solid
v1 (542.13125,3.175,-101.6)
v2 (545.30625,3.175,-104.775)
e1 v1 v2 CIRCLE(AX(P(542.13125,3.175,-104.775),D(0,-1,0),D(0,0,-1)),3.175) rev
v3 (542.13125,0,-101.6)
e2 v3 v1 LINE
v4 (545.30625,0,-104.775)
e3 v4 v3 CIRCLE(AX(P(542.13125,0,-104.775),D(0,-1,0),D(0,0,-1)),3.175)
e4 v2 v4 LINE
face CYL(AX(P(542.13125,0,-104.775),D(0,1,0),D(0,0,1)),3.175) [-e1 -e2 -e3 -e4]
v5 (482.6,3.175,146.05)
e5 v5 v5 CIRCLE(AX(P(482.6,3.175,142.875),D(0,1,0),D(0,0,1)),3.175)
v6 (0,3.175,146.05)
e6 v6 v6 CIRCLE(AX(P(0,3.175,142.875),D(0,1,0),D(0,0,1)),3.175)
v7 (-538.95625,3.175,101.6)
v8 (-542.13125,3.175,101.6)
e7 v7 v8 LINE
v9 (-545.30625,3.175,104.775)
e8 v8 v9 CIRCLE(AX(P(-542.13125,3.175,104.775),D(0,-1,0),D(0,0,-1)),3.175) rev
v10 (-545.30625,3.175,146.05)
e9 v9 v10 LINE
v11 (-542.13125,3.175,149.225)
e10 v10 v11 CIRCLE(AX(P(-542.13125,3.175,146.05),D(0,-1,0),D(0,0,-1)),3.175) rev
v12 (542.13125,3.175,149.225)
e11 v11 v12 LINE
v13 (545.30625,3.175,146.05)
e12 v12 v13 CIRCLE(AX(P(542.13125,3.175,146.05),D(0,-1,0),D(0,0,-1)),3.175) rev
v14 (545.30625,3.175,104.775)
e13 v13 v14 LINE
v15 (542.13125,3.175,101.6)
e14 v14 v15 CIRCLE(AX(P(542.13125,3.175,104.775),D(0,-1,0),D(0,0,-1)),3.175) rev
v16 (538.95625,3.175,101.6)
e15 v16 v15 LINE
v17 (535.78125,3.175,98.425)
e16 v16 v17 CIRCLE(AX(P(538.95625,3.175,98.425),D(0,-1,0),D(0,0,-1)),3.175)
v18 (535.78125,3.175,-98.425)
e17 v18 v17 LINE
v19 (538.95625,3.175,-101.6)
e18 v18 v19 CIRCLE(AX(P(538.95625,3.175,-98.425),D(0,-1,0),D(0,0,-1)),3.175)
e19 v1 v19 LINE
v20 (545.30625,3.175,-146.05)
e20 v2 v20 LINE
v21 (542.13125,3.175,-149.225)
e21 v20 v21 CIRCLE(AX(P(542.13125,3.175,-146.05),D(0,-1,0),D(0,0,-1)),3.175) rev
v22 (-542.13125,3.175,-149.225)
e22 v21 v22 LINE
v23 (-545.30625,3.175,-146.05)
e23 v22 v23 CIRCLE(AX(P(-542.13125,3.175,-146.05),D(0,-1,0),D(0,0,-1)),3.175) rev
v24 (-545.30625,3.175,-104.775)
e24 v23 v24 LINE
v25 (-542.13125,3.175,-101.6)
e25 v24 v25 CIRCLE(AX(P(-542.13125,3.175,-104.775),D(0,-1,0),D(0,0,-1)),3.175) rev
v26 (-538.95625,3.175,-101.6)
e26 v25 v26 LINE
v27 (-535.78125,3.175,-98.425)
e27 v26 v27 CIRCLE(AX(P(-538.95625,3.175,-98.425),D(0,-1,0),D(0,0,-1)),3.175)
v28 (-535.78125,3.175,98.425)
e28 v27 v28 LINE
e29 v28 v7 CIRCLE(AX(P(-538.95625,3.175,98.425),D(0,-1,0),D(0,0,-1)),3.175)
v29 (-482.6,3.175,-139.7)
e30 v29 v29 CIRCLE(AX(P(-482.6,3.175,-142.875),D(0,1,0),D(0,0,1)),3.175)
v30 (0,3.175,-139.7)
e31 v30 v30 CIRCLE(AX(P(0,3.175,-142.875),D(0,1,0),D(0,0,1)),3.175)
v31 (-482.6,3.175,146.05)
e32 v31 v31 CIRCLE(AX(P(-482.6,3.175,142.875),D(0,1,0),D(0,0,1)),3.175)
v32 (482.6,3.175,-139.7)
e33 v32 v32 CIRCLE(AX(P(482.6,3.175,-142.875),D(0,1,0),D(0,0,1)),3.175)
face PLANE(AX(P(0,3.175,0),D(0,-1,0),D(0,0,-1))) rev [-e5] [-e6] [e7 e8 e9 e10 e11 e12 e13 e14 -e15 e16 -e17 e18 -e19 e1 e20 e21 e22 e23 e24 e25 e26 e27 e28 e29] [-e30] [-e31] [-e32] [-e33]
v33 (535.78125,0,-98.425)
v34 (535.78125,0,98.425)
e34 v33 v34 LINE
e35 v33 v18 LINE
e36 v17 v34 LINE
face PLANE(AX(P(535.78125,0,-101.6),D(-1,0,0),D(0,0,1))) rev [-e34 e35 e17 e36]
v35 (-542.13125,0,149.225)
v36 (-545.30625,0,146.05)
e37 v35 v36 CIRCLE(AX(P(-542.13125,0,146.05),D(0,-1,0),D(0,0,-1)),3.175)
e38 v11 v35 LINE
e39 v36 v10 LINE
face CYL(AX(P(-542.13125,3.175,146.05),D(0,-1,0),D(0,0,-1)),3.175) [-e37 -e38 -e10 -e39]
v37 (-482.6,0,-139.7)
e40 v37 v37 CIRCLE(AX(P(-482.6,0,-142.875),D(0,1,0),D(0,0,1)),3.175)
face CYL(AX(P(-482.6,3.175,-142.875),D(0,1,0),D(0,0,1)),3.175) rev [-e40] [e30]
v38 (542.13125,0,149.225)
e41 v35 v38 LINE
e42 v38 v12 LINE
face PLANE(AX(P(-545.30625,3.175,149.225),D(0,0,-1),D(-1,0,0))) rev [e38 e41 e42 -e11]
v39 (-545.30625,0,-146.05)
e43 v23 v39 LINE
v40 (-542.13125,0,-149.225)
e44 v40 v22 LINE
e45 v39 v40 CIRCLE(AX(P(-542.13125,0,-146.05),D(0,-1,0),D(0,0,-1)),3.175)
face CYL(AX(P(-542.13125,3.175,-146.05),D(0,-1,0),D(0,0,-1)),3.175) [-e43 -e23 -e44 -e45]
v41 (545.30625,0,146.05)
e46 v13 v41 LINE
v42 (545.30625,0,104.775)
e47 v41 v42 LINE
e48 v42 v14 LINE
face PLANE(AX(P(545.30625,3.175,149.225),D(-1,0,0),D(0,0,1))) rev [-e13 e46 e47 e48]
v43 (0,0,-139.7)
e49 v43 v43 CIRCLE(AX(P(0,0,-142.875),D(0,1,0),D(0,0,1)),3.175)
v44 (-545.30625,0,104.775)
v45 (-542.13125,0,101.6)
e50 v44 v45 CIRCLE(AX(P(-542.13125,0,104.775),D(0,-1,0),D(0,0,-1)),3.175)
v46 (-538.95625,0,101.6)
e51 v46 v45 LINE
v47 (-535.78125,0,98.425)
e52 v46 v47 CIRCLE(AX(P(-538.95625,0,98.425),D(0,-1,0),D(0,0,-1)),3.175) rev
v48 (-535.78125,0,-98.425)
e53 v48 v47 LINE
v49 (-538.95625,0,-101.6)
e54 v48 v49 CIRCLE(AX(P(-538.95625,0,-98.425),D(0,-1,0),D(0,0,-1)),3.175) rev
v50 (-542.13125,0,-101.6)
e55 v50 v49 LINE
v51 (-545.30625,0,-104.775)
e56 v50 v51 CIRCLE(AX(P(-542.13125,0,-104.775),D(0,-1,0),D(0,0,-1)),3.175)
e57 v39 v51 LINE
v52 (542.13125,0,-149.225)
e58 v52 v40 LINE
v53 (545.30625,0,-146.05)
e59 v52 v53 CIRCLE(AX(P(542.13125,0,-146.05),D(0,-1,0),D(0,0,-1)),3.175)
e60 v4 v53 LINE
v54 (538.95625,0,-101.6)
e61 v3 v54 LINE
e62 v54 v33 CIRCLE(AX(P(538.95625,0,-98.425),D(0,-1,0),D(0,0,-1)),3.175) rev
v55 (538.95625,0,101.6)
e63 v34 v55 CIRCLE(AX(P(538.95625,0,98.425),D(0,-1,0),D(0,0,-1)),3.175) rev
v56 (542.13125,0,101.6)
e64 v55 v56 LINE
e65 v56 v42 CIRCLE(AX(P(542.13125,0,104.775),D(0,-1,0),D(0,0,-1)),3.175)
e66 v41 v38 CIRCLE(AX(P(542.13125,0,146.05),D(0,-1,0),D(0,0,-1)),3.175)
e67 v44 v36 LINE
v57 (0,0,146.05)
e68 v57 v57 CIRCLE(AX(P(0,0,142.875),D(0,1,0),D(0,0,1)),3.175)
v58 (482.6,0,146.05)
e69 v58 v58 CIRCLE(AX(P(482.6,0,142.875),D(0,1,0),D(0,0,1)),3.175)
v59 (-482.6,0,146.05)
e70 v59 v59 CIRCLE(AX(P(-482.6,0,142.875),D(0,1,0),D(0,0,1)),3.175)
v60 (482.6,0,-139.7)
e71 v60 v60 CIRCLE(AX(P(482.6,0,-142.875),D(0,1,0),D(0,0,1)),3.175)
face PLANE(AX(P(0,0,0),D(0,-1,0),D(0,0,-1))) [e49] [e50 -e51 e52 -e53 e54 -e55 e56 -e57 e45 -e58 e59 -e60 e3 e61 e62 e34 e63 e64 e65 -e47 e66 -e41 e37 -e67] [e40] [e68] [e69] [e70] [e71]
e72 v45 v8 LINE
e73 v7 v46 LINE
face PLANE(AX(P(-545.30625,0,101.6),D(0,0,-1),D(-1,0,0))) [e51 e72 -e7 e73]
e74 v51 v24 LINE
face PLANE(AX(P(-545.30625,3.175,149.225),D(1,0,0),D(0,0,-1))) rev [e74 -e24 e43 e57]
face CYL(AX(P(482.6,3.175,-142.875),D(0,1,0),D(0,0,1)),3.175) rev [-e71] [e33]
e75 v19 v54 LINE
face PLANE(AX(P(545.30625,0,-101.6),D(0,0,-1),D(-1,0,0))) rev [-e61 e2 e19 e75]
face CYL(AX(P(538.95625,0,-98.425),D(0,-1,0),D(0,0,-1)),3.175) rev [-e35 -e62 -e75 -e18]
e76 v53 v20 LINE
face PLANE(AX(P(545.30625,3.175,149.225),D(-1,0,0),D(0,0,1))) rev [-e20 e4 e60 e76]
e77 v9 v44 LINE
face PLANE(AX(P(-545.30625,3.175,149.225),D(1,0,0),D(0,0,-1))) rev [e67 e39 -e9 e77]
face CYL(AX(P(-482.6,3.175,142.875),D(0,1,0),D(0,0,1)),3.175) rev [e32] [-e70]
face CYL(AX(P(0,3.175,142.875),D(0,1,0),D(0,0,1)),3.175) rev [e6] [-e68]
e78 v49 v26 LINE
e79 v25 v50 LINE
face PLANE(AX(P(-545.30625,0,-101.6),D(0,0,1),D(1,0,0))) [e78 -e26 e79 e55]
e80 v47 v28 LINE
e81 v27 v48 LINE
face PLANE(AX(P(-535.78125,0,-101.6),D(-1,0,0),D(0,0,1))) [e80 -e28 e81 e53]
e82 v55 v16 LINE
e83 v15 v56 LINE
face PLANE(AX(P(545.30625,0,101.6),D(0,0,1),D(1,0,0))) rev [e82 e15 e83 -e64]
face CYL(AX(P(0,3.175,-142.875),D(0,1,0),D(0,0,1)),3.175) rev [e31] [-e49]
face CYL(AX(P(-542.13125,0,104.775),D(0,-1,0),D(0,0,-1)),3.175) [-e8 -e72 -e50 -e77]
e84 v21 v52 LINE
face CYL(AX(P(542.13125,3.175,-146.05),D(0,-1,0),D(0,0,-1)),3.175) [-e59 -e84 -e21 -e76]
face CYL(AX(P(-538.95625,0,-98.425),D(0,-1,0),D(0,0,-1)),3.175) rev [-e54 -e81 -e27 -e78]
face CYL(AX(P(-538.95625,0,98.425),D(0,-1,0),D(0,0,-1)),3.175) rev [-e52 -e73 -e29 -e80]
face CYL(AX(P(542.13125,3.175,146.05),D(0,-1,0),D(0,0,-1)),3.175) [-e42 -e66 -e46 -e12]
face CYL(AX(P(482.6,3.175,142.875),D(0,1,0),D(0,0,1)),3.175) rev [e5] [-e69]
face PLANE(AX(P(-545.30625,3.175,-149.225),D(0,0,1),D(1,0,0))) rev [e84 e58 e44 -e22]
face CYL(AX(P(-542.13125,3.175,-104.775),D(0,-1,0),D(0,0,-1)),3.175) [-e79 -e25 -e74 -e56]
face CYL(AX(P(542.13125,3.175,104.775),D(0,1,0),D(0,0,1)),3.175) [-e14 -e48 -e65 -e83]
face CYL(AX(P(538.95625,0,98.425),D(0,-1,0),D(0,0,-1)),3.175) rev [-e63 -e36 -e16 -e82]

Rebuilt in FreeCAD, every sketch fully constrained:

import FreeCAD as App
import Part
import Sketcher
Q = App.Units.Quantity


def edges_at(feature, points):
    """Names of the edges that pass closest to the given points."""
    edges = feature.Shape.Edges
    near = lambda p: min(range(len(edges)), key=lambda i: edges[i].distToShape(Part.Vertex(*p))[0])
    return sorted({f"Edge{near(p) + 1}" for p in points})

doc = App.newDocument("Part")
body = doc.addObject("PartDesign::Body", "Body")

# Sketch on XZ plane
sketch1 = body.newObject("Sketcher::SketchObject", "Sketch")
sketch1.AttachmentSupport = (doc.getObject("XZ_Plane"), [""])
sketch1.MapMode = "FlatFace"
sketch1.addGeometry(Part.LineSegment(App.Vector(-545, -149, 0), App.Vector(-545, 149, 0)), False)
sketch1.addGeometry(Part.LineSegment(App.Vector(-545, 149, 0), App.Vector(545, 149, 0)), False)
sketch1.addGeometry(Part.LineSegment(App.Vector(545, 149, 0), App.Vector(545, -149, 0)), False)
sketch1.addGeometry(Part.LineSegment(App.Vector(545, -149, 0), App.Vector(-545, -149, 0)), False)
sketch1.addConstraint(Sketcher.Constraint("Coincident", 0, 2, 1, 1))
sketch1.addConstraint(Sketcher.Constraint("Coincident", 1, 2, 2, 1))
sketch1.addConstraint(Sketcher.Constraint("Coincident", 2, 2, 3, 1))
sketch1.addConstraint(Sketcher.Constraint("Coincident", 3, 2, 0, 1))
sketch1.addConstraint(Sketcher.Constraint("Vertical", 0))
sketch1.addConstraint(Sketcher.Constraint("Horizontal", 1))
sketch1.addConstraint(Sketcher.Constraint("Vertical", 2))
sketch1.addConstraint(Sketcher.Constraint("Horizontal", 3))
sketch1.addConstraint(Sketcher.Constraint("Symmetric", 0, 2, 2, 2, -1, 1))
sketch1.addConstraint(Sketcher.Constraint("DistanceY", 0, 1, 0, 2, Q("11.75 in")))
sketch1.addConstraint(Sketcher.Constraint("DistanceX", 1, 1, 1, 2, Q("42.9375 in")))
pad1 = body.newObject("PartDesign::Pad", "Pad")
pad1.Profile = sketch1
pad1.Length = Q("0.125 in")
pad1.Reversed = True

# Sketch on XZ plane
sketch2 = body.newObject("Sketcher::SketchObject", "Sketch001")
sketch2.AttachmentSupport = (doc.getObject("XZ_Plane"), [""])
sketch2.MapMode = "FlatFace"
sketch2.AttachmentOffset = App.Placement(App.Vector(0, 0, -0.125 * 25.4), App.Rotation())
sketch2.addGeometry(Part.LineSegment(App.Vector(536, -102, 0), App.Vector(536, 102, 0)), False)
sketch2.addGeometry(Part.LineSegment(App.Vector(536, 102, 0), App.Vector(545, 102, 0)), False)
sketch2.addGeometry(Part.LineSegment(App.Vector(545, 102, 0), App.Vector(545, -102, 0)), False)
sketch2.addGeometry(Part.LineSegment(App.Vector(545, -102, 0), App.Vector(536, -102, 0)), False)
sketch2.addConstraint(Sketcher.Constraint("Coincident", 0, 2, 1, 1))
sketch2.addConstraint(Sketcher.Constraint("Coincident", 1, 2, 2, 1))
sketch2.addConstraint(Sketcher.Constraint("Coincident", 2, 2, 3, 1))
sketch2.addConstraint(Sketcher.Constraint("Coincident", 3, 2, 0, 1))
sketch2.addConstraint(Sketcher.Constraint("Vertical", 0))
sketch2.addConstraint(Sketcher.Constraint("Horizontal", 1))
sketch2.addConstraint(Sketcher.Constraint("Vertical", 2))
sketch2.addConstraint(Sketcher.Constraint("Horizontal", 3))
sketch2.addConstraint(Sketcher.Constraint("DistanceY", 0, 1, 0, 2, Q("8 in")))
sketch2.addConstraint(Sketcher.Constraint("DistanceY", -1, 1, 0, 2, Q("4 in")))
sketch2.addConstraint(Sketcher.Constraint("DistanceX", 1, 1, 1, 2, Q("0.375 in")))
sketch2.addConstraint(Sketcher.Constraint("DistanceX", -1, 1, 0, 2, Q("21.09375 in")))
pocket1 = body.newObject("PartDesign::Pocket", "Pocket")
pocket1.Profile = sketch2
pocket1.Type = "ThroughAll"
pocket1.Reversed = True
doc.recompute()

fillet = body.newObject("PartDesign::Fillet", "Fillet")
fillet.Base = (pocket1, edges_at(pocket1, [(535.781, 1.587, 101.6), (535.781, 1.587, -101.6)]))
fillet.Radius = Q("0.125 in")
doc.recompute()

mirrored = body.newObject("PartDesign::Mirrored", "Mirrored")
mirrored.Originals = [pocket1]
mirrored.MirrorPlane = (doc.getObject("YZ_Plane"), [""])
body.Tip = mirrored
doc.recompute()

fillet2 = body.newObject("PartDesign::Fillet", "Fillet001")
fillet2.Base = (mirrored, edges_at(mirrored, [(-535.781, 1.587, 101.6), (-535.781, 1.587, -101.6)]))
fillet2.Radius = Q("0.125 in")

# Sketch on XZ plane
sketch3 = body.newObject("Sketcher::SketchObject", "Sketch002")
sketch3.AttachmentSupport = (doc.getObject("XZ_Plane"), [""])
sketch3.MapMode = "FlatFace"
sketch3.AttachmentOffset = App.Placement(App.Vector(0, 0, -0.125 * 25.4), App.Rotation())
sketch3.addGeometry(Part.Circle(App.Vector(482.6, -142.9, 0), App.Vector(0, 0, 1), 3.2), False)
sketch3.addGeometry(Part.Circle(App.Vector(0, -142.9, 0), App.Vector(0, 0, 1), 3.2), False)
sketch3.addGeometry(Part.Circle(App.Vector(-482.6, -142.9, 0), App.Vector(0, 0, 1), 3.2), False)
sketch3.addConstraint(Sketcher.Constraint("Equal", 0, 1))
sketch3.addConstraint(Sketcher.Constraint("Equal", 1, 2))
sketch3.addConstraint(Sketcher.Constraint("Symmetric", 0, 3, 2, 3, -2))
sketch3.addConstraint(Sketcher.Constraint("PointOnObject", 1, 3, -2))
sketch3.addConstraint(Sketcher.Constraint("Horizontal", 0, 3, 1, 3))
sketch3.addConstraint(Sketcher.Constraint("Diameter", 0, Q("0.25 in")))
sketch3.addConstraint(Sketcher.Constraint("DistanceX", -1, 1, 0, 3, Q("19 in")))
sketch3.addConstraint(Sketcher.Constraint("DistanceY", 0, 3, -1, 1, Q("5.625 in")))
doc.recompute()
hole = body.newObject("PartDesign::Hole", "Hole")
hole.Profile = sketch3
hole.ThreadType = "None"
hole.Diameter = Q("0.25 in")
hole.DepthType = "ThroughAll"
hole.Reversed = True
doc.recompute()

mirrored2 = body.newObject("PartDesign::Mirrored", "Mirrored001")
mirrored2.Originals = [hole]
mirrored2.MirrorPlane = (doc.getObject("XY_Plane"), [""])
body.Tip = mirrored2
doc.recompute()

fillet3 = body.newObject("PartDesign::Fillet", "Fillet002")
fillet3.Base = (mirrored2, edges_at(mirrored2, [
    (545.306, 1.587, -101.6),
    (545.306, 1.587, 101.6),
    (-545.306, 1.587, 101.6),
    (-545.306, 1.587, -101.6),
    (545.306, 1.587, 149.225),
    (-545.306, 1.587, 149.225),
    (-545.306, 1.587, -149.225),
    (545.306, 1.587, -149.225),
]))
fillet3.Radius = Q("0.125 in")

doc.recompute()
